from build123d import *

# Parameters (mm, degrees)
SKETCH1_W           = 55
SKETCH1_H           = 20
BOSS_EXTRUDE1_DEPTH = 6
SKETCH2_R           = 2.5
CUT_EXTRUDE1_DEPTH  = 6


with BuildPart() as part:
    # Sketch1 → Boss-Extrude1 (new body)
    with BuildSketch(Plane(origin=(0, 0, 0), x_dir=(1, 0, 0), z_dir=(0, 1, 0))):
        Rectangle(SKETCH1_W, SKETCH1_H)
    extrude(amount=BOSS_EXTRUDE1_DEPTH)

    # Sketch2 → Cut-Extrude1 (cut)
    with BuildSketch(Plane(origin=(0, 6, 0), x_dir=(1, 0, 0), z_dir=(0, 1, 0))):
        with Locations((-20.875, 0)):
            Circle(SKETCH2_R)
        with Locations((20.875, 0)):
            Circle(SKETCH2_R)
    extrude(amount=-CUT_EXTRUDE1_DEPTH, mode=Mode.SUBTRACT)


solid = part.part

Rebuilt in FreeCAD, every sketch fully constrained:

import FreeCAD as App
import Part
import Sketcher
from FreeCAD import Vector


def add_polygon(sketch, points):
    """Adds a closed chain of lines whose ends are joined by coincident constraints."""
    first, n = sketch.GeometryCount, len(points)
    for a, b in zip(points, points[1:] + points[:1]):
        sketch.addGeometry(Part.LineSegment(App.Vector(*a, 0), App.Vector(*b, 0)), False)
    for i in range(n):
        sketch.addConstraint(Sketcher.Constraint("Coincident", first + i, 2, first + (i + 1) % n, 1))

doc = App.newDocument("Part")
body = doc.addObject("PartDesign::Body", "Body")

sketch1 = doc.addObject("Sketcher::SketchObject", "Sketch")
body.addObject(sketch1)
sketch1.AttachmentSupport = (doc.XZ_Plane, [""])
sketch1.MapMode = "FlatFace"
add_polygon(sketch1, [(-28, -10), (-28, 10), (28, 10), (28, -10)])
sketch1.addConstraint([
    Sketcher.Constraint("Vertical", 0),
    Sketcher.Constraint("Horizontal", 1),
    Sketcher.Constraint("Vertical", 2),
    Sketcher.Constraint("Horizontal", 3),
    Sketcher.Constraint("Symmetric", 0, 2, 2, 2, -1, 1),
    Sketcher.Constraint("DistanceX", 1, 1, 1, 2, 55.0),
    Sketcher.Constraint("DistanceY", 0, 1, 0, 2, 20.0),
])
pad1 = doc.addObject("PartDesign::Pad", "Pad")
body.addObject(pad1)
pad1.Profile = sketch1
pad1.Length = 6
pad1.Reversed = True

sketch2 = doc.addObject("Sketcher::SketchObject", "Sketch001")
body.addObject(sketch2)
sketch2.AttachmentSupport = (doc.XZ_Plane, [""])
sketch2.MapMode = "FlatFace"
sketch2.AttachmentOffset = App.Placement(Vector(0, 0, -6), App.Rotation())
sketch2.addGeometry([
    Part.Circle(Vector(-20.9, 0, 0), Vector(0, 0, 1), 2.5),
    Part.Circle(Vector(20.9, 0, 0), Vector(0, 0, 1), 2.5),
], False)
sketch2.addConstraint([
    Sketcher.Constraint("Equal", 0, 1),
    Sketcher.Constraint("Symmetric", 0, 3, 1, 3, -1, 1),
    Sketcher.Constraint("PointOnObject", 0, 3, -1),
    Sketcher.Constraint("Diameter", 0, 5.0),
    Sketcher.Constraint("DistanceX", 0, 3, 1, 3, 41.75),
])
pocket1 = doc.addObject("PartDesign::Pocket", "Pocket")
body.addObject(pocket1)
pocket1.Profile = sketch2
pocket1.Length = 6
pocket1.Reversed = True

doc.recompute()
